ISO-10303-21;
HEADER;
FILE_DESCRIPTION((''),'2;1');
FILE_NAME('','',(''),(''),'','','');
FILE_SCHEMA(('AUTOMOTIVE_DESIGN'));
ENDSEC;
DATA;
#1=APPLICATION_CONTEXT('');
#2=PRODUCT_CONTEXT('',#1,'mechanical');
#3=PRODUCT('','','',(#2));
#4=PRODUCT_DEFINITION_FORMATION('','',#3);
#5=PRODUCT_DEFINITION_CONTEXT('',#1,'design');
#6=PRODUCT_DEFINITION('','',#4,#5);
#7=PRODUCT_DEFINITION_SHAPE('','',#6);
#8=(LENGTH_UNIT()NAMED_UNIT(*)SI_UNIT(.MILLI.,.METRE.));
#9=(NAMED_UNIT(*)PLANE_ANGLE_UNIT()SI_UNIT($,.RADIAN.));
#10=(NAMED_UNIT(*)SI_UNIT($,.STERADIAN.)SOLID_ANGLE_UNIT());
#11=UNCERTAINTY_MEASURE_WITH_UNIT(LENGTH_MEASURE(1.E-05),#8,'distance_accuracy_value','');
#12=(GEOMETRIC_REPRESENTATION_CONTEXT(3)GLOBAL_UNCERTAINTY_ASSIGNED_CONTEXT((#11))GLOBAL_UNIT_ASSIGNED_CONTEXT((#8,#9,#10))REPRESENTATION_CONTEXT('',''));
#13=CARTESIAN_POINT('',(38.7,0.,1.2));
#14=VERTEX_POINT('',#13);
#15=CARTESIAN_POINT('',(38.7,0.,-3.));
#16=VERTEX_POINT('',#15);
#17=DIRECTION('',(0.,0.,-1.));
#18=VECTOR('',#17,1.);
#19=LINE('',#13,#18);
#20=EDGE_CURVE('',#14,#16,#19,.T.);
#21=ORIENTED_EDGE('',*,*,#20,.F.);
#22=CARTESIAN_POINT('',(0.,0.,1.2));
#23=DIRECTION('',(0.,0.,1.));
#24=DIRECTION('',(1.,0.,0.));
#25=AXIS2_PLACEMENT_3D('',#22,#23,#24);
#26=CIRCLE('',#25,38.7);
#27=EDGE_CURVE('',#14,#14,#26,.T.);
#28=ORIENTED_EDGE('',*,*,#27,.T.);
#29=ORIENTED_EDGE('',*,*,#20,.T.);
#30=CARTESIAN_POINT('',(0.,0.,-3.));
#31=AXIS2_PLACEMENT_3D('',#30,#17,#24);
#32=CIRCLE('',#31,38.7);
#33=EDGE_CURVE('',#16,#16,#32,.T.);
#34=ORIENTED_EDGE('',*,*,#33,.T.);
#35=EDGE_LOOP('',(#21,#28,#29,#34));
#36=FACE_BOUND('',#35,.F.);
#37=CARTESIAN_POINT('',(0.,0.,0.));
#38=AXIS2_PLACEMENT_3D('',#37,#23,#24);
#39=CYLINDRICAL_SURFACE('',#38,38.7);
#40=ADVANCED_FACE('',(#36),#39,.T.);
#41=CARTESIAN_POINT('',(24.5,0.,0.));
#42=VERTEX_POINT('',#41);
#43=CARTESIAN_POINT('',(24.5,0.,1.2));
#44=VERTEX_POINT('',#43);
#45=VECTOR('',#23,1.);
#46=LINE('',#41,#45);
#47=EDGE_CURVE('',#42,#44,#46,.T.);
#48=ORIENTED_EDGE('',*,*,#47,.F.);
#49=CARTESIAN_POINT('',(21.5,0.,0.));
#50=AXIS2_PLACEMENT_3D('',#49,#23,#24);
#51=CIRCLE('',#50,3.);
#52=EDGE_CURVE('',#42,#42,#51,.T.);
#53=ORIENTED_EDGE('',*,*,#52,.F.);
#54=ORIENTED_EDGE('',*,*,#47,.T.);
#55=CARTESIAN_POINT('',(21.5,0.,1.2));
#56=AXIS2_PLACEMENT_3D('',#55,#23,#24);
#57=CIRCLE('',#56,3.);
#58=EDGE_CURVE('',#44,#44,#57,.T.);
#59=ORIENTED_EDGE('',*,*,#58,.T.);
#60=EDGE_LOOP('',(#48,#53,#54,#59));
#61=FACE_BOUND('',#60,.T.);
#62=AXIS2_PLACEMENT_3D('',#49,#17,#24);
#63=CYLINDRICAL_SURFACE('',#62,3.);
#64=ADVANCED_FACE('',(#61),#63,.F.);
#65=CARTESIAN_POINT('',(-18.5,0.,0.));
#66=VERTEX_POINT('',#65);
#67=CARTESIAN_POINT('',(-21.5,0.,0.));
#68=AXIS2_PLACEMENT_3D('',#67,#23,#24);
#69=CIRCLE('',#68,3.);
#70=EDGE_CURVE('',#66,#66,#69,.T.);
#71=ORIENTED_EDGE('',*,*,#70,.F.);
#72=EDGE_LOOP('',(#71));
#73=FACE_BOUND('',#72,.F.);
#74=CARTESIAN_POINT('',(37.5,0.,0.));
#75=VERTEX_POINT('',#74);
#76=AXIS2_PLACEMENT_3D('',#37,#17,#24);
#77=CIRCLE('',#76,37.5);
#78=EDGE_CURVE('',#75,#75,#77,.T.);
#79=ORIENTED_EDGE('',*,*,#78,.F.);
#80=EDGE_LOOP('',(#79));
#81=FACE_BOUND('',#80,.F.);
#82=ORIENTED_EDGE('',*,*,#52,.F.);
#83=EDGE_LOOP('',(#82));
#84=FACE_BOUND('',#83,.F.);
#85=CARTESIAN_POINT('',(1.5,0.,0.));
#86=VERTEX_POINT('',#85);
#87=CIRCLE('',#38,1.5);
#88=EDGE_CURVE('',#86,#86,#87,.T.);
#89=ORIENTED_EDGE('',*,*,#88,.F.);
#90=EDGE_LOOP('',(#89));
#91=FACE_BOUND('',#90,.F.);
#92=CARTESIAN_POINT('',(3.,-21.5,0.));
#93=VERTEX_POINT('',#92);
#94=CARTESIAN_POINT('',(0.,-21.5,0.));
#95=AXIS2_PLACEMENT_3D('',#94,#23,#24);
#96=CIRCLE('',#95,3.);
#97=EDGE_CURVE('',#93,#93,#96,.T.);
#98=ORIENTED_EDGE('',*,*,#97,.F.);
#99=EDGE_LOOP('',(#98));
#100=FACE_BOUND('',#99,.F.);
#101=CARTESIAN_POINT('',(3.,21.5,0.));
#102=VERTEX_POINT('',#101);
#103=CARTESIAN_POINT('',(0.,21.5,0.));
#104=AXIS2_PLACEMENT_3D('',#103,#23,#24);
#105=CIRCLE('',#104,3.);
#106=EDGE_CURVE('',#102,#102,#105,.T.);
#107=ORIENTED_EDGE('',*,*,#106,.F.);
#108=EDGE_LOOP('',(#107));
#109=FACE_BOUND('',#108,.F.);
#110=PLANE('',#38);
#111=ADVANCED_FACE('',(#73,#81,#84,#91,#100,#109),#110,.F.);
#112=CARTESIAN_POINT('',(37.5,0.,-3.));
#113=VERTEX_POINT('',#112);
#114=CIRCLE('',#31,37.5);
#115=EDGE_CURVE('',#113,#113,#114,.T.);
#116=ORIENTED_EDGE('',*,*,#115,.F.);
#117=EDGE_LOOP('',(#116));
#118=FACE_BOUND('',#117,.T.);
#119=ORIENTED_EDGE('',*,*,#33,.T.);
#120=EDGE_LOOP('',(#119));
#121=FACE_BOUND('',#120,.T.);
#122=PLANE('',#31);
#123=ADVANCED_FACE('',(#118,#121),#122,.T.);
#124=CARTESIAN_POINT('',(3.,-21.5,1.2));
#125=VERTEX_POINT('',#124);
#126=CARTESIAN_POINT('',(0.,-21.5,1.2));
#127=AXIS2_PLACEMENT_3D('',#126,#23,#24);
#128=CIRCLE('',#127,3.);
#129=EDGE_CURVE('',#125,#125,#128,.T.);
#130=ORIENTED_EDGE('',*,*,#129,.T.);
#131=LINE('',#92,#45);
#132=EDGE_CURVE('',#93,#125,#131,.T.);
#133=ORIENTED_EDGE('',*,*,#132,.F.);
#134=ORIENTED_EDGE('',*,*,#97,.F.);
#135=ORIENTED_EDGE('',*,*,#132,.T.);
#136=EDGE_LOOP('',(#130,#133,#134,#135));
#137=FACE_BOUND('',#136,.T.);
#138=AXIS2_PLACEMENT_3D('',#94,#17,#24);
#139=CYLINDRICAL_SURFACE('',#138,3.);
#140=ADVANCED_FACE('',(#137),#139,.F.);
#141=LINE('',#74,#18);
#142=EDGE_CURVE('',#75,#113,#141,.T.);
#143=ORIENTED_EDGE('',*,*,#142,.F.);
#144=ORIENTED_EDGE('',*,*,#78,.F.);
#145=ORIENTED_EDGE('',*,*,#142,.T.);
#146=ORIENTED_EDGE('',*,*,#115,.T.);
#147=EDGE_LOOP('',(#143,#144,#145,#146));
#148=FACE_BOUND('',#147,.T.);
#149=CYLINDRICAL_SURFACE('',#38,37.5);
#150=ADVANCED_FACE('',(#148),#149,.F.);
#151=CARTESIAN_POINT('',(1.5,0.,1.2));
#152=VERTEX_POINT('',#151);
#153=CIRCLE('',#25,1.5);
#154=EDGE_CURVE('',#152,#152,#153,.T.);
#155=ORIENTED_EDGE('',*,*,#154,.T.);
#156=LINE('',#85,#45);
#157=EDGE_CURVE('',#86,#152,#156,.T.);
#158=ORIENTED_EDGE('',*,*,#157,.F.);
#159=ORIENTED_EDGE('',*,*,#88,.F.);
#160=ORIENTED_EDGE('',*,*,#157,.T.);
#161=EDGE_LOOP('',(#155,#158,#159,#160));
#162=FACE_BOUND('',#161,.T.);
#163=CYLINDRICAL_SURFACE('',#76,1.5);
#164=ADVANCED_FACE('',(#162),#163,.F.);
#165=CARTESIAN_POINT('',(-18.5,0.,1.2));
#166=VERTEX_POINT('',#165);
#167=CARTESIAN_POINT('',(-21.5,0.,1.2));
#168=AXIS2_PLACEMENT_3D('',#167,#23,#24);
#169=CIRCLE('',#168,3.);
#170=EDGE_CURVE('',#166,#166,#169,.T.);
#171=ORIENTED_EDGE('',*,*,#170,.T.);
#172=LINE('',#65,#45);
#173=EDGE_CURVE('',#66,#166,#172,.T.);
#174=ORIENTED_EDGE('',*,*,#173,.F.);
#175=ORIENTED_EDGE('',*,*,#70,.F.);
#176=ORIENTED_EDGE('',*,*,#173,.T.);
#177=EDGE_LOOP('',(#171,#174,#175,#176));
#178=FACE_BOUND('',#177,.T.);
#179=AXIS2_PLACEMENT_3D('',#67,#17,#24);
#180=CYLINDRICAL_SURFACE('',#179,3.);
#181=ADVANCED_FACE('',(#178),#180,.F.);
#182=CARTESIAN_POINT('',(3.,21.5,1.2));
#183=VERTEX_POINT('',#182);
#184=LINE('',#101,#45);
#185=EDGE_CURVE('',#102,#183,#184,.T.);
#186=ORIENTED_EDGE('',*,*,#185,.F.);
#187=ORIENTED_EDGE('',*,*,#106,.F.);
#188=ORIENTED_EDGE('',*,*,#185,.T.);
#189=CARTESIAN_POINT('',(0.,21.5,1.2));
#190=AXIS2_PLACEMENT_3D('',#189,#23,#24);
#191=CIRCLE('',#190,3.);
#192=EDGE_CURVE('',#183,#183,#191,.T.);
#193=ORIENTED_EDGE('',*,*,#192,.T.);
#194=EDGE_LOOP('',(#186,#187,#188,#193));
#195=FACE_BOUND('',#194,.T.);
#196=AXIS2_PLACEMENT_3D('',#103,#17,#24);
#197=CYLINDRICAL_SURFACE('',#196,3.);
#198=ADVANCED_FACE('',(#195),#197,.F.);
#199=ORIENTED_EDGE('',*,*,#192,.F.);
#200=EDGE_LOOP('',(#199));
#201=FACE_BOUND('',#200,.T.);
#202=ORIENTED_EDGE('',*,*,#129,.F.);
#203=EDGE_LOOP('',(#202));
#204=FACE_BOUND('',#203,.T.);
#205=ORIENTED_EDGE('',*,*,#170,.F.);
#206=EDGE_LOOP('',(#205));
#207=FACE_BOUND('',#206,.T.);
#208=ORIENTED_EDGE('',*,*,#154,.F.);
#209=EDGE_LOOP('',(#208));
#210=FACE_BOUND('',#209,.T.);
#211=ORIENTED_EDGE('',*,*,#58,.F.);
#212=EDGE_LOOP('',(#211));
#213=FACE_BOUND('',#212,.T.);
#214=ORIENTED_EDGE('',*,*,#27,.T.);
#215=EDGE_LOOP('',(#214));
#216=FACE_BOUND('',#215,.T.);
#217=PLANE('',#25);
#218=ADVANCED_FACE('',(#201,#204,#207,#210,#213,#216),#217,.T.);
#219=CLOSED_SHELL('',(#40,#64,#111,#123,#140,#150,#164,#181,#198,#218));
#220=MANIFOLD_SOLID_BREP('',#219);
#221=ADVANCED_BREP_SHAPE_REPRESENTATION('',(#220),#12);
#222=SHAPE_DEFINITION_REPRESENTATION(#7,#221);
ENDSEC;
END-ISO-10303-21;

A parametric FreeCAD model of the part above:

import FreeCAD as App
import Part
import Sketcher
Q = App.Units.Quantity

doc = App.newDocument("Part")
params = doc.addObject("Spreadsheet::Sheet", "Params")
for row, (alias, value) in enumerate([
    ("sketch1_diameter", "6 mm"),
    ("sketch1_diameter2", "3 mm"),
    ("sketch1_diameter3", "77.4 mm"),
    ("pad1_length", "1.2 mm"),
    ("sketch2_diameter", "75 mm"),
    ("sketch2_diameter2", "77.4 mm"),
    ("pad2_length", "3 mm"),
], start=1):
    params.set(f"A{row}", alias)
    params.set(f"B{row}", "=" + value)
    params.setAlias(f"B{row}", alias)

body = doc.addObject("PartDesign::Body", "Body")

sketch1 = body.newObject("Sketcher::SketchObject", "Sketch")
sketch1.AttachmentSupport = (doc.getObject("XY_Plane"), [""])
sketch1.MapMode = "FlatFace"
sketch1.addGeometry([
    Part.Circle(App.Vector(0, 0, 0), App.Vector(0, 0, 1), 38.7),
    Part.Circle(App.Vector(0, -21.5, 0), App.Vector(0, 0, 1), 3),
    Part.Circle(App.Vector(-21.5, 0, 0), App.Vector(0, 0, 1), 3),
    Part.Circle(App.Vector(0, 0, 0), App.Vector(0, 0, 1), 1.5),
    Part.Circle(App.Vector(21.5, 0, 0), App.Vector(0, 0, 1), 3),
    Part.Circle(App.Vector(0, 21.5, 0), App.Vector(0, 0, 1), 3),
], False)
sketch1.addConstraint([
    Sketcher.Constraint("Coincident", 0, 3, -1, 1),
    Sketcher.Constraint("Coincident", 3, 3, -1, 1),
    Sketcher.Constraint("Equal", 1, 2),
    Sketcher.Constraint("Equal", 2, 4),
    Sketcher.Constraint("Equal", 4, 5),
    Sketcher.Constraint("Symmetric", 2, 3, 4, 3, -1, 1),
    Sketcher.Constraint("Symmetric", 1, 3, 5, 3, -1, 1),
    Sketcher.Constraint("PointOnObject", 1, 3, -2),
    Sketcher.Constraint("PointOnObject", 2, 3, -1),
    Sketcher.Constraint("Diameter", 1, Q("6 mm")),
    Sketcher.Constraint("Diameter", 3, Q("3 mm")),
    Sketcher.Constraint("Diameter", 0, Q("77.4 mm")),
    Sketcher.Constraint("DistanceX", 2, 3, 4, 3, Q("43 mm")),
    Sketcher.Constraint("DistanceY", 1, 3, 5, 3, Q("43 mm")),
])
sketch1.setExpression("Constraints[9]", "Params.sketch1_diameter")
sketch1.setExpression("Constraints[10]", "Params.sketch1_diameter2")
sketch1.setExpression("Constraints[11]", "Params.sketch1_diameter3")
pad1 = body.newObject("PartDesign::Pad", "Pad")
pad1.Profile = sketch1
pad1.setExpression("Length", "Params.pad1_length")

sketch2 = body.newObject("Sketcher::SketchObject", "Sketch001")
sketch2.AttachmentSupport = (doc.getObject("XY_Plane"), [""])
sketch2.MapMode = "FlatFace"
sketch2.addGeometry([
    Part.Circle(App.Vector(0, 0, 0), App.Vector(0, 0, 1), 38.7),
    Part.Circle(App.Vector(0, 0, 0), App.Vector(0, 0, 1), 37.5),
], False)
sketch2.addConstraint([
    Sketcher.Constraint("Coincident", 0, 3, -1, 1),
    Sketcher.Constraint("Coincident", 1, 3, -1, 1),
    Sketcher.Constraint("Diameter", 1, Q("75 mm")),
    Sketcher.Constraint("Diameter", 0, Q("77.4 mm")),
])
sketch2.setExpression("Constraints[2]", "Params.sketch2_diameter")
sketch2.setExpression("Constraints[3]", "Params.sketch2_diameter2")
pad2 = body.newObject("PartDesign::Pad", "Pad001")
pad2.Profile = sketch2
pad2.setExpression("Length", "Params.pad2_length")
pad2.Reversed = True

doc.recompute()
